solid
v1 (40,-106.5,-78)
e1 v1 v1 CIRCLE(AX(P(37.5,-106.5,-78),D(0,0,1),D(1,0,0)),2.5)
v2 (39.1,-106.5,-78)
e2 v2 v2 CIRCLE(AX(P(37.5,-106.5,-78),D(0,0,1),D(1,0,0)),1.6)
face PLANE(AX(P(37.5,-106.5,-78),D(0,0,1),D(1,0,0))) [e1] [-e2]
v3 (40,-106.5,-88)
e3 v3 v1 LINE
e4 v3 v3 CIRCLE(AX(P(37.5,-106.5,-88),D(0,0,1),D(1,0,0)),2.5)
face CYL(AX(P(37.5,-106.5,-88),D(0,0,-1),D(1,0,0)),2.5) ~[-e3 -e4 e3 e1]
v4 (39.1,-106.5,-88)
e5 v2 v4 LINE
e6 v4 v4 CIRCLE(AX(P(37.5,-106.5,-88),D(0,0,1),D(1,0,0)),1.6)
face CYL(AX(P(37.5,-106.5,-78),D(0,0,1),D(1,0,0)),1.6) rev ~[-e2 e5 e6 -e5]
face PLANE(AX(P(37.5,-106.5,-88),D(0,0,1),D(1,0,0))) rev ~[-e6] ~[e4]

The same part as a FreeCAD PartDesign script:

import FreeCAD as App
import Part
import Sketcher

V = App.Vector
Q = App.Units.Quantity

doc = App.newDocument("Part")
params = doc.addObject("Spreadsheet::Sheet", "Params")
for row, (alias, value) in enumerate([
    ("sketch1_diameter", "3.2 mm"),
    ("pad1_length", "10 mm"),
    ("sketch2_diameter", "5 mm"),
    ("pad2_length", "10 mm"),
], start=1):
    params.set(f"A{row}", alias)
    params.set(f"B{row}", "=" + value)
    params.setAlias(f"B{row}", alias)

body = doc.addObject("PartDesign::Body", "Body")

# Sketch on XY plane
sketch1 = body.newObject("Sketcher::SketchObject", "Sketch")
sketch1.AttachmentSupport = (doc.getObject("XY_Plane"), [""])
sketch1.MapMode = "FlatFace"
sketch1.AttachmentOffset = App.Placement(V(0, 0, 10), App.Rotation())
sketch1.addGeometry(Part.Circle(V(0, 0, 0), V(0, 0, 1), 1.6), False)
sketch1.addConstraint(Sketcher.Constraint("Coincident", 0, 3, -1, 1))
sketch1.addConstraint(Sketcher.Constraint("Diameter", 0, Q("3.2 mm")))
sketch1.setExpression("Constraints[1]", "Params.sketch1_diameter")
pad1 = body.newObject("PartDesign::Pad", "Pad")
pad1.Profile = sketch1
pad1.setExpression("Length", "Params.pad1_length")
pad1.Reversed = True
body2 = doc.addObject("PartDesign::Body", "Body001")

# Sketch on XY plane
sketch2 = body2.newObject("Sketcher::SketchObject", "Sketch001")
sketch2.AttachmentSupport = (doc.getObject("XY_Plane001"), [""])
sketch2.MapMode = "FlatFace"
sketch2.addGeometry(Part.Circle(V(0, 0, 0), V(0, 0, 1), 2.5), False)
sketch2.addConstraint(Sketcher.Constraint("Coincident", 0, 3, -1, 1))
sketch2.addConstraint(Sketcher.Constraint("Diameter", 0, Q("5 mm")))
sketch2.setExpression("Constraints[1]", "Params.sketch2_diameter")
pad2 = body2.newObject("PartDesign::Pad", "Pad001")
pad2.Profile = sketch2
pad2.setExpression("Length", "Params.pad2_length")
doc.recompute()

boolean = body2.newObject("PartDesign::Boolean", "Boolean")
boolean.Type = "Cut"
boolean.addObjects([body])
body3 = doc.addObject("PartDesign::Body", "Body002")
doc.recompute()

body2.Placement = App.Placement(V(37.5, -106.5, -88), App.Rotation(V(0, 0, 1), 0))
boolean2 = body3.newObject("PartDesign::Boolean", "Boolean001")
boolean2.Type = "Fuse"
boolean2.addObjects([body2])

doc.recompute()
